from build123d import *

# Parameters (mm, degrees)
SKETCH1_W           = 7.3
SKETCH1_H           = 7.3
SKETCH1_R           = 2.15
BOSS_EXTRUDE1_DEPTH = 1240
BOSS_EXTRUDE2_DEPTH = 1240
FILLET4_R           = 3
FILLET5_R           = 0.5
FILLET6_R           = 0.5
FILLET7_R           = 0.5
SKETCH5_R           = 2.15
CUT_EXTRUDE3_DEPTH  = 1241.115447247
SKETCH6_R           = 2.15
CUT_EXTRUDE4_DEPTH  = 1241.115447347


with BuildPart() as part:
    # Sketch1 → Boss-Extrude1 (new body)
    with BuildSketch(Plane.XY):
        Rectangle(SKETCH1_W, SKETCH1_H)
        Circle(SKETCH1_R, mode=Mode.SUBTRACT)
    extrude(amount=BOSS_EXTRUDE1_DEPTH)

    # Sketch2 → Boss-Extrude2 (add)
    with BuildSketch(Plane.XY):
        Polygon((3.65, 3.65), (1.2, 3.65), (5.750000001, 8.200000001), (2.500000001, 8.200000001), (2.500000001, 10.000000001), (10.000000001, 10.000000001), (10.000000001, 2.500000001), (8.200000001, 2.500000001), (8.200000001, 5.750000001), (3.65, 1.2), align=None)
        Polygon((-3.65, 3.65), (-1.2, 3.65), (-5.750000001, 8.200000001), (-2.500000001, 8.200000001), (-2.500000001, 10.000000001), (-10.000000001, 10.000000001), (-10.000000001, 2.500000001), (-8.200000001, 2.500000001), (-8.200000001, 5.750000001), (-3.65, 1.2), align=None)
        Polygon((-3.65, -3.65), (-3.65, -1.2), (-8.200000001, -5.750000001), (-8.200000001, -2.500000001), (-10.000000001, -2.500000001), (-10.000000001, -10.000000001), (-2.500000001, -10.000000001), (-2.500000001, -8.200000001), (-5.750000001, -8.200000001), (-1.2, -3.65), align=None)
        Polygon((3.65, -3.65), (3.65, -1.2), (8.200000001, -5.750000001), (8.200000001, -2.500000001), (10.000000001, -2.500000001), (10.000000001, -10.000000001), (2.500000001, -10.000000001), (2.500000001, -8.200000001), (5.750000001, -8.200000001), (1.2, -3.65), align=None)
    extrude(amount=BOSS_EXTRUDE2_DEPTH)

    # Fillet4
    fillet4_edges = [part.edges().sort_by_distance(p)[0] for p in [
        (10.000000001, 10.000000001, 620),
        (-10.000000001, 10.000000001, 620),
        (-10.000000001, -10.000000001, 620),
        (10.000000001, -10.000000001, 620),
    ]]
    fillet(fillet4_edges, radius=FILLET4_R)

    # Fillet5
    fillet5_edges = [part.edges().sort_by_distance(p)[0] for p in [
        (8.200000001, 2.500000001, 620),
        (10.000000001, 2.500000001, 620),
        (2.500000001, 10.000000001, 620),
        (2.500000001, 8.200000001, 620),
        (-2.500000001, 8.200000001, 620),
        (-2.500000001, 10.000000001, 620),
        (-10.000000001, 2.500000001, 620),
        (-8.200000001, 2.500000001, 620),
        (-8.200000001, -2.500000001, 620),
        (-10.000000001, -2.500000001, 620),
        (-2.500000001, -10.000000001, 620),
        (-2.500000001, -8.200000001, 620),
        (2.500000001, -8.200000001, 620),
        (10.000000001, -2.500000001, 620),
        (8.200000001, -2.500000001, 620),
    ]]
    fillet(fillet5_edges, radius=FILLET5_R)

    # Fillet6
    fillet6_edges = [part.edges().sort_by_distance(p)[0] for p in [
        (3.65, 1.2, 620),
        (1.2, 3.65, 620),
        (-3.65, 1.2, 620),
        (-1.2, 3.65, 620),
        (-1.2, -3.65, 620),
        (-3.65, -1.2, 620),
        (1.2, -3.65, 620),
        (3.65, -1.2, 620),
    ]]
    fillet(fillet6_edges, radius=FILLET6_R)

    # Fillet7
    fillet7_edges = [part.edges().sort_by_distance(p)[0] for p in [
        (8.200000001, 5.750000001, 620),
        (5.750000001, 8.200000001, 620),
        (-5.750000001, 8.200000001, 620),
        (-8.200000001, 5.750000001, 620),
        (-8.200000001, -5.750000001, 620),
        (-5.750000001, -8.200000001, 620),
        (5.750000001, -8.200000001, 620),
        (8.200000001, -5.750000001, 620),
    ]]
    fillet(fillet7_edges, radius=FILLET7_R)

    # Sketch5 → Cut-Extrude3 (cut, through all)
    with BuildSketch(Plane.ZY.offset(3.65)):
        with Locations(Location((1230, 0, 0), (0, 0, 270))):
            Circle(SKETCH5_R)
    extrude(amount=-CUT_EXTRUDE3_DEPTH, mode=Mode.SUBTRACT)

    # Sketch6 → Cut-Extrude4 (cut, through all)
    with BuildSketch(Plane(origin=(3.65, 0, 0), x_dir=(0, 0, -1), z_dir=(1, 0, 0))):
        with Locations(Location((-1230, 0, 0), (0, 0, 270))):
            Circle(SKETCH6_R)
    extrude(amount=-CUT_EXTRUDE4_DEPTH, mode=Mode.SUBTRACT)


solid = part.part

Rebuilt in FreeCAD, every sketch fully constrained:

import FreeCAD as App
import Part
import Sketcher

V = App.Vector


def edges_at(feature, points):
    """Names of the edges that pass closest to the given points."""
    edges = feature.Shape.Edges
    near = lambda p: min(range(len(edges)), key=lambda i: edges[i].distToShape(Part.Vertex(*p))[0])
    return sorted({f"Edge{near(p) + 1}" for p in points})

doc = App.newDocument("Part")
body = doc.addObject("PartDesign::Body", "Body")

# Sketch on XY plane
sketch1 = body.newObject("Sketcher::SketchObject", "Sketch")
sketch1.AttachmentSupport = (doc.getObject("XY_Plane"), [""])
sketch1.MapMode = "FlatFace"
sketch1.addGeometry([
    Part.LineSegment(V(-3.6, 3.6, 0), V(-3.6, -3.6, 0)),  # 0
    Part.LineSegment(V(-3.6, -3.6, 0), V(3.6, -3.6, 0)),  # 1
    Part.LineSegment(V(3.6, -3.6, 0), V(3.6, 3.6, 0)),  # 2
    Part.LineSegment(V(3.6, 3.6, 0), V(-3.6, 3.6, 0)),  # 3
    Part.Circle(V(0, 0, 0), V(0, 0, 1), 2.1),  # 4
], False)
sketch1.addConstraint([
    Sketcher.Constraint("Coincident", 0, 2, 1, 1),
    Sketcher.Constraint("Coincident", 1, 2, 2, 1),
    Sketcher.Constraint("Coincident", 2, 2, 3, 1),
    Sketcher.Constraint("Coincident", 3, 2, 0, 1),
    Sketcher.Constraint("Vertical", 0),
    Sketcher.Constraint("Horizontal", 1),
    Sketcher.Constraint("Vertical", 2),
    Sketcher.Constraint("Horizontal", 3),
    Sketcher.Constraint("Coincident", 4, 3, -1, 1),
    Sketcher.Constraint("Symmetric", 0, 2, 2, 2, -1, 1),
    Sketcher.Constraint("Equal", 3, 0),
    Sketcher.Constraint("Diameter", 4, 4.3),
    Sketcher.Constraint("DistanceX", 1, 1, 1, 2, 7.3),
])
pad1 = body.newObject("PartDesign::Pad", "Pad")
pad1.Profile = sketch1
pad1.Length = 1240

# Sketch on XY plane
sketch2 = body.newObject("Sketcher::SketchObject", "Sketch001")
sketch2.AttachmentSupport = (doc.getObject("XY_Plane"), [""])
sketch2.MapMode = "FlatFace"
sketch2.addGeometry([
    Part.LineSegment(V(1.2, 3.6, 0), V(3.6, 3.6, 0)),  # 0
    Part.LineSegment(V(3.6, 3.6, 0), V(3.6, 1.2, 0)),  # 1
    Part.LineSegment(V(3.6, 1.2, 0), V(8.2, 5.8, 0)),  # 2
    Part.LineSegment(V(8.2, 5.8, 0), V(8.2, 2.5, 0)),  # 3
    Part.LineSegment(V(8.2, 2.5, 0), V(10, 2.5, 0)),  # 4
    Part.LineSegment(V(10, 2.5, 0), V(10, 10, 0)),  # 5
    Part.LineSegment(V(10, 10, 0), V(2.5, 10, 0)),  # 6
    Part.LineSegment(V(2.5, 10, 0), V(2.5, 8.2, 0)),  # 7
    Part.LineSegment(V(2.5, 8.2, 0), V(5.8, 8.2, 0)),  # 8
    Part.LineSegment(V(5.8, 8.2, 0), V(1.2, 3.6, 0)),  # 9
    Part.LineSegment(V(-3.6, 3.6, 0), V(-1.2, 3.6, 0)),  # 10
    Part.LineSegment(V(-1.2, 3.6, 0), V(-5.8, 8.2, 0)),  # 11
    Part.LineSegment(V(-5.8, 8.2, 0), V(-2.5, 8.2, 0)),  # 12
    Part.LineSegment(V(-2.5, 8.2, 0), V(-2.5, 10, 0)),  # 13
    Part.LineSegment(V(-2.5, 10, 0), V(-10, 10, 0)),  # 14
    Part.LineSegment(V(-10, 10, 0), V(-10, 2.5, 0)),  # 15
    Part.LineSegment(V(-10, 2.5, 0), V(-8.2, 2.5, 0)),  # 16
    Part.LineSegment(V(-8.2, 2.5, 0), V(-8.2, 5.8, 0)),  # 17
    Part.LineSegment(V(-8.2, 5.8, 0), V(-3.6, 1.2, 0)),  # 18
    Part.LineSegment(V(-3.6, 1.2, 0), V(-3.6, 3.6, 0)),  # 19
    Part.LineSegment(V(-3.6, -3.6, 0), V(-3.6, -1.2, 0)),  # 20
    Part.LineSegment(V(-3.6, -1.2, 0), V(-8.2, -5.8, 0)),  # 21
    Part.LineSegment(V(-8.2, -5.8, 0), V(-8.2, -2.5, 0)),  # 22
    Part.LineSegment(V(-8.2, -2.5, 0), V(-10, -2.5, 0)),  # 23
    Part.LineSegment(V(-10, -2.5, 0), V(-10, -10, 0)),  # 24
    Part.LineSegment(V(-10, -10, 0), V(-2.5, -10, 0)),  # 25
    Part.LineSegment(V(-2.5, -10, 0), V(-2.5, -8.2, 0)),  # 26
    Part.LineSegment(V(-2.5, -8.2, 0), V(-5.8, -8.2, 0)),  # 27
    Part.LineSegment(V(-5.8, -8.2, 0), V(-1.2, -3.6, 0)),  # 28
    Part.LineSegment(V(-1.2, -3.6, 0), V(-3.6, -3.6, 0)),  # 29
    Part.LineSegment(V(3.6, -1.2, 0), V(3.6, -3.6, 0)),  # 30
    Part.LineSegment(V(3.6, -3.6, 0), V(1.2, -3.6, 0)),  # 31
    Part.LineSegment(V(1.2, -3.6, 0), V(5.8, -8.2, 0)),  # 32
    Part.LineSegment(V(5.8, -8.2, 0), V(2.5, -8.2, 0)),  # 33
    Part.LineSegment(V(2.5, -8.2, 0), V(2.5, -10, 0)),  # 34
    Part.LineSegment(V(2.5, -10, 0), V(10, -10, 0)),  # 35
    Part.LineSegment(V(10, -10, 0), V(10, -2.5, 0)),  # 36
    Part.LineSegment(V(10, -2.5, 0), V(8.2, -2.5, 0)),  # 37
    Part.LineSegment(V(8.2, -2.5, 0), V(8.2, -5.8, 0)),  # 38
    Part.LineSegment(V(8.2, -5.8, 0), V(3.6, -1.2, 0)),  # 39
], False)
sketch2.addConstraint([
    Sketcher.Constraint("Coincident", 0, 2, 1, 1),
    Sketcher.Constraint("Coincident", 1, 2, 2, 1),
    Sketcher.Constraint("Coincident", 2, 2, 3, 1),
    Sketcher.Constraint("Coincident", 3, 2, 4, 1),
    Sketcher.Constraint("Coincident", 4, 2, 5, 1),
    Sketcher.Constraint("Coincident", 5, 2, 6, 1),
    Sketcher.Constraint("Coincident", 6, 2, 7, 1),
    Sketcher.Constraint("Coincident", 7, 2, 8, 1),
    Sketcher.Constraint("Coincident", 8, 2, 9, 1),
    Sketcher.Constraint("Coincident", 9, 2, 0, 1),
    Sketcher.Constraint("Coincident", 10, 2, 11, 1),
    Sketcher.Constraint("Coincident", 11, 2, 12, 1),
    Sketcher.Constraint("Coincident", 12, 2, 13, 1),
    Sketcher.Constraint("Coincident", 13, 2, 14, 1),
    Sketcher.Constraint("Coincident", 14, 2, 15, 1),
    Sketcher.Constraint("Coincident", 15, 2, 16, 1),
    Sketcher.Constraint("Coincident", 16, 2, 17, 1),
    Sketcher.Constraint("Coincident", 17, 2, 18, 1),
    Sketcher.Constraint("Coincident", 18, 2, 19, 1),
    Sketcher.Constraint("Coincident", 19, 2, 10, 1),
    Sketcher.Constraint("Coincident", 20, 2, 21, 1),
    Sketcher.Constraint("Coincident", 21, 2, 22, 1),
    Sketcher.Constraint("Coincident", 22, 2, 23, 1),
    Sketcher.Constraint("Coincident", 23, 2, 24, 1),
    Sketcher.Constraint("Coincident", 24, 2, 25, 1),
    Sketcher.Constraint("Coincident", 25, 2, 26, 1),
    Sketcher.Constraint("Coincident", 26, 2, 27, 1),
    Sketcher.Constraint("Coincident", 27, 2, 28, 1),
    Sketcher.Constraint("Coincident", 28, 2, 29, 1),
    Sketcher.Constraint("Coincident", 29, 2, 20, 1),
    Sketcher.Constraint("Coincident", 30, 2, 31, 1),
    Sketcher.Constraint("Coincident", 31, 2, 32, 1),
    Sketcher.Constraint("Coincident", 32, 2, 33, 1),
    Sketcher.Constraint("Coincident", 33, 2, 34, 1),
    Sketcher.Constraint("Coincident", 34, 2, 35, 1),
    Sketcher.Constraint("Coincident", 35, 2, 36, 1),
    Sketcher.Constraint("Coincident", 36, 2, 37, 1),
    Sketcher.Constraint("Coincident", 37, 2, 38, 1),
    Sketcher.Constraint("Coincident", 38, 2, 39, 1),
    Sketcher.Constraint("Coincident", 39, 2, 30, 1),
    Sketcher.Constraint("Horizontal", 0),
    Sketcher.Constraint("Vertical", 1),
    Sketcher.Constraint("Vertical", 3),
    Sketcher.Constraint("Horizontal", 4),
    Sketcher.Constraint("Vertical", 5),
    Sketcher.Constraint("Horizontal", 6),
    Sketcher.Constraint("Vertical", 7),
    Sketcher.Constraint("Horizontal", 8),
    Sketcher.Constraint("Horizontal", 10),
    Sketcher.Constraint("Horizontal", 12),
    Sketcher.Constraint("Vertical", 13),
    Sketcher.Constraint("Horizontal", 14),
    Sketcher.Constraint("Vertical", 15),
    Sketcher.Constraint("Horizontal", 16),
    Sketcher.Constraint("Vertical", 17),
    Sketcher.Constraint("Vertical", 19),
    Sketcher.Constraint("Vertical", 20),
    Sketcher.Constraint("Vertical", 22),
    Sketcher.Constraint("Horizontal", 23),
    Sketcher.Constraint("Vertical", 24),
    Sketcher.Constraint("Horizontal", 25),
    Sketcher.Constraint("Vertical", 26),
    Sketcher.Constraint("Horizontal", 27),
    Sketcher.Constraint("Horizontal", 29),
    Sketcher.Constraint("Vertical", 30),
    Sketcher.Constraint("Horizontal", 31),
    Sketcher.Constraint("Horizontal", 33),
    Sketcher.Constraint("Vertical", 34),
    Sketcher.Constraint("Horizontal", 35),
    Sketcher.Constraint("Vertical", 36),
    Sketcher.Constraint("Horizontal", 37),
    Sketcher.Constraint("Vertical", 38),
    Sketcher.Constraint("Symmetric", 1, 2, 20, 2, -1, 1),
    Sketcher.Constraint("Symmetric", 2, 2, 21, 2, -1, 1),
    Sketcher.Constraint("Symmetric", 4, 2, 23, 2, -1, 1),
    Sketcher.Constraint("Symmetric", 6, 2, 25, 2, -1, 1),
    Sketcher.Constraint("Symmetric", 8, 2, 27, 2, -1, 1),
    Sketcher.Constraint("Symmetric", 9, 2, 28, 2, -1, 1),
    Sketcher.Constraint("Symmetric", 19, 2, 30, 2, -1, 1),
    Sketcher.Constraint("Symmetric", 11, 2, 32, 2, -1, 1),
    Sketcher.Constraint("Symmetric", 13, 2, 34, 2, -1, 1),
    Sketcher.Constraint("Symmetric", 15, 2, 36, 2, -1, 1),
    Sketcher.Constraint("Symmetric", 17, 2, 38, 2, -1, 1),
    Sketcher.Constraint("Symmetric", 9, 2, 10, 2, -2),
    Sketcher.Constraint("Symmetric", 8, 2, 11, 2, -2),
    Sketcher.Constraint("Symmetric", 6, 2, 13, 2, -2),
    Sketcher.Constraint("Symmetric", 4, 2, 15, 2, -2),
    Sketcher.Constraint("Symmetric", 2, 2, 17, 2, -2),
    Sketcher.Constraint("Symmetric", 1, 2, 18, 2, -2),
    Sketcher.Constraint("Parallel", 2, 9),
    Sketcher.Constraint("Perpendicular", 9, 11),
    Sketcher.Constraint("Perpendicular", 28, 32),
    Sketcher.Constraint("Parallel", 32, 39),
    Sketcher.Constraint("Equal", 31, 1),
    Sketcher.Constraint("Equal", 33, 3),
    Sketcher.Constraint("Equal", 35, 5),
    Sketcher.Constraint("Equal", 37, 7),
    Sketcher.Constraint("DistanceX", 4, 1, 4, 2, 1.8),
    Sketcher.Constraint("DistanceX", 6, 2, 6, 1, 7.5),
    Sketcher.Constraint("DistanceX", -1, 1, 4, 2, 10.0),
    Sketcher.Constraint("DistanceY", -1, 1, 5, 2, 10.0),
    Sketcher.Constraint("DistanceY", 1, 2, 7, 2, 7.0),
    Sketcher.Constraint("DistanceX", 0, 1, 0, 2, 2.45),
])
pad2 = body.newObject("PartDesign::Pad", "Pad001")
pad2.Profile = sketch2
pad2.Length = 1240
doc.recompute()

fillet = body.newObject("PartDesign::Fillet", "Fillet")
fillet.Base = (pad2, edges_at(pad2, [
    (10, 10, 620),
    (-10, 10, 620),
    (-10, -10, 620),
    (10, -10, 620),
]))
fillet.Radius = 3
doc.recompute()

fillet2 = body.newObject("PartDesign::Fillet", "Fillet001")
fillet2.Base = (fillet, edges_at(fillet, [
    (8.2, 2.5, 620),
    (10, 2.5, 620),
    (2.5, 10, 620),
    (2.5, 8.2, 620),
    (-2.5, 8.2, 620),
    (-2.5, 10, 620),
    (-10, 2.5, 620),
    (-8.2, 2.5, 620),
    (-8.2, -2.5, 620),
    (-10, -2.5, 620),
    (-2.5, -10, 620),
    (-2.5, -8.2, 620),
    (2.5, -8.2, 620),
    (10, -2.5, 620),
    (8.2, -2.5, 620),
]))
fillet2.Radius = 0.5
doc.recompute()

fillet3 = body.newObject("PartDesign::Fillet", "Fillet002")
fillet3.Base = (fillet2, edges_at(fillet2, [
    (3.65, 1.2, 620),
    (1.2, 3.65, 620),
    (-3.65, 1.2, 620),
    (-1.2, 3.65, 620),
    (-1.2, -3.65, 620),
    (-3.65, -1.2, 620),
    (1.2, -3.65, 620),
    (3.65, -1.2, 620),
]))
fillet3.Radius = 0.5
doc.recompute()

fillet4 = body.newObject("PartDesign::Fillet", "Fillet003")
fillet4.Base = (fillet3, edges_at(fillet3, [
    (8.2, 5.75, 620),
    (5.75, 8.2, 620),
    (-5.75, 8.2, 620),
    (-8.2, 5.75, 620),
    (-8.2, -5.75, 620),
    (-5.75, -8.2, 620),
    (5.75, -8.2, 620),
    (8.2, -5.75, 620),
]))
fillet4.Radius = 0.5

# Sketch on YZ plane
sketch3 = body.newObject("Sketcher::SketchObject", "Sketch002")
sketch3.AttachmentSupport = (doc.getObject("YZ_Plane"), [""])
sketch3.MapMode = "FlatFace"
sketch3.AttachmentOffset = App.Placement(V(0, 0, -3.65), App.Rotation())
sketch3.addGeometry(Part.Circle(V(0, 1230, 0), V(0, 0, 1), 2.1), False)
sketch3.addConstraint([
    Sketcher.Constraint("PointOnObject", 0, 3, -2),
    Sketcher.Constraint("Diameter", 0, 4.3),
    Sketcher.Constraint("DistanceY", -1, 1, 0, 3, 1230.0),
])
pocket1 = body.newObject("PartDesign::Pocket", "Pocket")
pocket1.Profile = sketch3
pocket1.Type = "ThroughAll"
pocket1.Reversed = True

# Sketch on YZ plane
sketch4 = body.newObject("Sketcher::SketchObject", "Sketch003")
sketch4.AttachmentSupport = (doc.getObject("YZ_Plane"), [""])
sketch4.MapMode = "FlatFace"
sketch4.AttachmentOffset = App.Placement(V(0, 0, 3.65), App.Rotation())
sketch4.addGeometry(Part.Circle(V(0, 1230, 0), V(0, 0, 1), 2.1), False)
sketch4.addConstraint([
    Sketcher.Constraint("PointOnObject", 0, 3, -2),
    Sketcher.Constraint("Diameter", 0, 4.3),
    Sketcher.Constraint("DistanceY", -1, 1, 0, 3, 1230.0),
])
pocket2 = body.newObject("PartDesign::Pocket", "Pocket001")
pocket2.Profile = sketch4
pocket2.Type = "ThroughAll"

doc.recompute()
